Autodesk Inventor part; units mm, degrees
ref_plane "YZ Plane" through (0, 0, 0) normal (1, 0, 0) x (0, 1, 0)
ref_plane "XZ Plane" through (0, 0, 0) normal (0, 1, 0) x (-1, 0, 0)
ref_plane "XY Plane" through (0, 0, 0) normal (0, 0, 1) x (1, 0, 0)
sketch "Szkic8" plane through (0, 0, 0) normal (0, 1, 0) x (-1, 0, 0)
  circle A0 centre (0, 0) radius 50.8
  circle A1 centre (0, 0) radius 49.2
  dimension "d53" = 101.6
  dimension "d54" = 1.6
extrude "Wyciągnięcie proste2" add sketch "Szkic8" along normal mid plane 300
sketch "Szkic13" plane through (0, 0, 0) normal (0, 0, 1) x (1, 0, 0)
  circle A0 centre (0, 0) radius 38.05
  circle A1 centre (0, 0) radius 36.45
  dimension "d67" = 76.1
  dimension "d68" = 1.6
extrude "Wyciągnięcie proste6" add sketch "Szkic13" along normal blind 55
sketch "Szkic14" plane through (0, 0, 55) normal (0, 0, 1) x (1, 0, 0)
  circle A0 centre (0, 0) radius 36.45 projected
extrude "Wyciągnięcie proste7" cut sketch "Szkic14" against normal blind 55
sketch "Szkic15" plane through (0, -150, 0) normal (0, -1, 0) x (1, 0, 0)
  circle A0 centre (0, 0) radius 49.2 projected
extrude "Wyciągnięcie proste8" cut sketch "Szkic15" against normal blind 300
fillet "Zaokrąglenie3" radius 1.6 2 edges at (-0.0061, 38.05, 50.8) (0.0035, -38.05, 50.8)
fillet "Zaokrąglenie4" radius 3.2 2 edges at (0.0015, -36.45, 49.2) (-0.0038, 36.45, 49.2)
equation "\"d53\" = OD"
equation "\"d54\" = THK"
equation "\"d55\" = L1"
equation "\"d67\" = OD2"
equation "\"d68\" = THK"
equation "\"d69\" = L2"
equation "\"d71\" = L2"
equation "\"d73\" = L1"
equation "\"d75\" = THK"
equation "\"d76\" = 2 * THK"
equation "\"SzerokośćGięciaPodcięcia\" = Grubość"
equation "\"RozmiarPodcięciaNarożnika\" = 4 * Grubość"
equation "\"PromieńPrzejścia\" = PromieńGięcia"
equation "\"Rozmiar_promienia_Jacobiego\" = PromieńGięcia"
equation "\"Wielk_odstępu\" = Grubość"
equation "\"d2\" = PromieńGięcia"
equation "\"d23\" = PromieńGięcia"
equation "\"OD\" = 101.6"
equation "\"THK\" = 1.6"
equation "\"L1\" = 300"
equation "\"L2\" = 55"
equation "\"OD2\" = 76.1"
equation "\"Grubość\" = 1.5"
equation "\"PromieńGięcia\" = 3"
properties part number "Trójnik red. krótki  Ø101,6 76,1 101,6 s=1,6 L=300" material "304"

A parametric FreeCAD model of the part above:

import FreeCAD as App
import Part
import Sketcher
from FreeCAD import Vector
Q = App.Units.Quantity


def edges_at(feature, points):
    """Names of the edges that pass closest to the given points."""
    edges = feature.Shape.Edges
    near = lambda p: min(range(len(edges)), key=lambda i: edges[i].distToShape(Part.Vertex(*p))[0])
    return sorted({f"Edge{near(p) + 1}" for p in points})

doc = App.newDocument("Part")
params = doc.addObject("Spreadsheet::Sheet", "Params")
for row, (alias, value) in enumerate([
    ("sketch1_diameter", "101.6 mm"),
    ("sketch1_diameter2", "98.4 mm"),
    ("pad1_length", "300 mm"),
    ("sketch2_diameter", "76.1 mm"),
    ("sketch2_diameter2", "72.9 mm"),
    ("pad2_length", "55 mm"),
    ("sketch3_diameter", "72.9 mm"),
    ("pocket1_length", "55 mm"),
    ("sketch4_diameter", "98.4 mm"),
    ("pocket2_length", "300 mm"),
    ("fillet_radius", "1.6 mm"),
    ("fillet2_radius", "3.2 mm"),
], start=1):
    params.set(f"A{row}", alias)
    params.set(f"B{row}", "=" + value)
    params.setAlias(f"B{row}", alias)

body = doc.addObject("PartDesign::Body", "Body")

# Sketch on XZ plane
sketch1 = doc.addObject("Sketcher::SketchObject", "Sketch")
body.addObject(sketch1)
sketch1.AttachmentSupport = (doc.XZ_Plane, [""])
sketch1.MapMode = "FlatFace"
sketch1.addGeometry([
    Part.Circle(Vector(0, 0, 0), Vector(0, 0, 1), 51),
    Part.Circle(Vector(0, 0, 0), Vector(0, 0, 1), 49),
], False)
sketch1.addConstraint([
    Sketcher.Constraint("Coincident", 0, 3, -1, 1),
    Sketcher.Constraint("Coincident", 1, 3, -1, 1),
    Sketcher.Constraint("Diameter", 0, Q("101.6 mm")),
    Sketcher.Constraint("Diameter", 1, Q("98.4 mm")),
])
sketch1.setExpression("Constraints[2]", "Params.sketch1_diameter")
sketch1.setExpression("Constraints[3]", "Params.sketch1_diameter2")
pad1 = doc.addObject("PartDesign::Pad", "Pad")
body.addObject(pad1)
pad1.Profile = sketch1
pad1.setExpression("Length", "Params.pad1_length")
pad1.Midplane = True

# Sketch on XY plane
sketch2 = doc.addObject("Sketcher::SketchObject", "Sketch001")
body.addObject(sketch2)
sketch2.AttachmentSupport = (doc.XY_Plane, [""])
sketch2.MapMode = "FlatFace"
sketch2.addGeometry([
    Part.Circle(Vector(0, 0, 0), Vector(0, 0, 1), 38),
    Part.Circle(Vector(0, 0, 0), Vector(0, 0, 1), 36),
], False)
sketch2.addConstraint([
    Sketcher.Constraint("Coincident", 0, 3, -1, 1),
    Sketcher.Constraint("Coincident", 1, 3, -1, 1),
    Sketcher.Constraint("Diameter", 0, Q("76.1 mm")),
    Sketcher.Constraint("Diameter", 1, Q("72.9 mm")),
])
sketch2.setExpression("Constraints[2]", "Params.sketch2_diameter")
sketch2.setExpression("Constraints[3]", "Params.sketch2_diameter2")
pad2 = doc.addObject("PartDesign::Pad", "Pad001")
body.addObject(pad2)
pad2.Profile = sketch2
pad2.setExpression("Length", "Params.pad2_length")

# Sketch on XY plane
sketch3 = doc.addObject("Sketcher::SketchObject", "Sketch002")
body.addObject(sketch3)
sketch3.AttachmentSupport = (doc.XY_Plane, [""])
sketch3.MapMode = "FlatFace"
sketch3.AttachmentOffset = App.Placement(Vector(0, 0, 55), App.Rotation())
sketch3.addGeometry(Part.Circle(Vector(0, 0, 0), Vector(0, 0, 1), 36), False)
sketch3.addConstraint([
    Sketcher.Constraint("Coincident", 0, 3, -1, 1),
    Sketcher.Constraint("Diameter", 0, Q("72.9 mm")),
])
sketch3.setExpression("Constraints[1]", "Params.sketch3_diameter")
pocket1 = doc.addObject("PartDesign::Pocket", "Pocket")
body.addObject(pocket1)
pocket1.Profile = sketch3
pocket1.setExpression("Length", "Params.pocket1_length")

# Sketch on XZ plane
sketch4 = doc.addObject("Sketcher::SketchObject", "Sketch003")
body.addObject(sketch4)
sketch4.AttachmentSupport = (doc.XZ_Plane, [""])
sketch4.MapMode = "FlatFace"
sketch4.AttachmentOffset = App.Placement(Vector(0, 0, 150), App.Rotation())
sketch4.addGeometry(Part.Circle(Vector(0, 0, 0), Vector(0, 0, 1), 49), False)
sketch4.addConstraint([
    Sketcher.Constraint("Coincident", 0, 3, -1, 1),
    Sketcher.Constraint("Diameter", 0, Q("98.4 mm")),
])
sketch4.setExpression("Constraints[1]", "Params.sketch4_diameter")
pocket2 = doc.addObject("PartDesign::Pocket", "Pocket001")
body.addObject(pocket2)
pocket2.Profile = sketch4
pocket2.setExpression("Length", "Params.pocket2_length")
doc.recompute()

fillet = doc.addObject("PartDesign::Fillet", "Fillet")
body.addObject(fillet)
fillet.Base = (pocket2, edges_at(pocket2, [(-0.006, 38.05, 50.8), (0.004, -38.05, 50.8)]))
fillet.setExpression("Radius", "Params.fillet_radius")
doc.recompute()

fillet2 = doc.addObject("PartDesign::Fillet", "Fillet001")
body.addObject(fillet2)
fillet2.Base = (fillet, edges_at(fillet, [(0.002, -36.45, 49.2), (-0.004, 36.45, 49.2)]))
fillet2.setExpression("Radius", "Params.fillet2_radius")

doc.recompute()
